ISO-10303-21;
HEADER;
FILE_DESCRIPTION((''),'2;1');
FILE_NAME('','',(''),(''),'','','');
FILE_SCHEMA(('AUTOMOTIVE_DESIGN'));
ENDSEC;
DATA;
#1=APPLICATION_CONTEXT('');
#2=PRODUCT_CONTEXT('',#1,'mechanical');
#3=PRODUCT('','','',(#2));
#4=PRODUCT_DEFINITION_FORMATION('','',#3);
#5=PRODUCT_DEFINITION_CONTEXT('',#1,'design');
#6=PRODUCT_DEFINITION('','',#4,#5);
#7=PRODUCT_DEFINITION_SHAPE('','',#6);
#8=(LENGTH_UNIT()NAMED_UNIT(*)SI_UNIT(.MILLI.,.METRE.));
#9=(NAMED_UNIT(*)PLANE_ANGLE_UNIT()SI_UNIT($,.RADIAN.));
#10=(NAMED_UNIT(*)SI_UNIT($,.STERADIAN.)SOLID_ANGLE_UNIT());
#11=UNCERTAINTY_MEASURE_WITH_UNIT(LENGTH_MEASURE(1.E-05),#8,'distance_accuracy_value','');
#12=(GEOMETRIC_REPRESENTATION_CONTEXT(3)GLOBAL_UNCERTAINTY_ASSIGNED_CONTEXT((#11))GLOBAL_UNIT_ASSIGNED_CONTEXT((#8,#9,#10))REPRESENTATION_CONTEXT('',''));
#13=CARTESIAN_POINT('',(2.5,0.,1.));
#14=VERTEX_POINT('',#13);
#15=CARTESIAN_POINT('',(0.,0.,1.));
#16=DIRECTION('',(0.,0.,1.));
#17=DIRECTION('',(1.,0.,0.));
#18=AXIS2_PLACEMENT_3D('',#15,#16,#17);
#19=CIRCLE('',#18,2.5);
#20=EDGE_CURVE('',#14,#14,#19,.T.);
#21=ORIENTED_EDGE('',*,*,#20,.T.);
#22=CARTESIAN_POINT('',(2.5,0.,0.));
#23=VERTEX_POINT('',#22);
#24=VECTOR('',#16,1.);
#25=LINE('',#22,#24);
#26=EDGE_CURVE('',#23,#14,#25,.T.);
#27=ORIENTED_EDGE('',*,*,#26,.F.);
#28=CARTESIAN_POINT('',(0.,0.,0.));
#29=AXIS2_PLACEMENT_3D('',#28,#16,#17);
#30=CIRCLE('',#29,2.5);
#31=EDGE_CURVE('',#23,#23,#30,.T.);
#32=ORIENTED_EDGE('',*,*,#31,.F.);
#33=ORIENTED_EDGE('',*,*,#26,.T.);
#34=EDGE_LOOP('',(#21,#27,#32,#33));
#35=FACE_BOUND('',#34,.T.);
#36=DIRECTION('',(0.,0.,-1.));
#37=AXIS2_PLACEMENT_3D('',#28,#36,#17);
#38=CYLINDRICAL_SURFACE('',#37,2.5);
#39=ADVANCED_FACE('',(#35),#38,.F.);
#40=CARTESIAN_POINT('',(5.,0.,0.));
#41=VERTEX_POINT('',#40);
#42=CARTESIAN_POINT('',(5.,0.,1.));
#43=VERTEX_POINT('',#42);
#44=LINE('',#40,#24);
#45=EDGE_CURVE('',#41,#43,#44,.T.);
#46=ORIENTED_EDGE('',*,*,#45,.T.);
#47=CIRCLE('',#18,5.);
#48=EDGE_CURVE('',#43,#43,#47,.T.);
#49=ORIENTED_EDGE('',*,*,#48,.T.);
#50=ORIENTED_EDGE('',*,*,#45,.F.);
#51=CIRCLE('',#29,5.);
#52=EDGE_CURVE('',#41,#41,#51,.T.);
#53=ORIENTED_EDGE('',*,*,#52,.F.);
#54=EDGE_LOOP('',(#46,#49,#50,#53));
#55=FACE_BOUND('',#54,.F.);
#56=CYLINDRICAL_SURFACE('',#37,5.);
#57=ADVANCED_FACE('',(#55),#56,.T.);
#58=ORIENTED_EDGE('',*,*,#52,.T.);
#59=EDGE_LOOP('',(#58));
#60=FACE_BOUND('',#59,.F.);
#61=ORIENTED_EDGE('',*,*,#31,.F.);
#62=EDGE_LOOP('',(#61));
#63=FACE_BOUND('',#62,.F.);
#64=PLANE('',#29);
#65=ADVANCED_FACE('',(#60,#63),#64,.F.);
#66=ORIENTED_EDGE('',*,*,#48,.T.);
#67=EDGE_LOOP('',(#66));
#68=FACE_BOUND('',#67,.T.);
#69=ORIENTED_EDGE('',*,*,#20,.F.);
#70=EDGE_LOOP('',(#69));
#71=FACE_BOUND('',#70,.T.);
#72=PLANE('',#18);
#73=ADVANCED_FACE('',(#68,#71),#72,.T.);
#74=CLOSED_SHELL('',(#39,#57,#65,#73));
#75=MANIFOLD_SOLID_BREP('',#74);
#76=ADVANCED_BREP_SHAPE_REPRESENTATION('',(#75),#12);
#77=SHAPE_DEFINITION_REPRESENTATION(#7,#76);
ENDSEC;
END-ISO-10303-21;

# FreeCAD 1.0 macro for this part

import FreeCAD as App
import Part
import Sketcher

V = App.Vector
Q = App.Units.Quantity

doc = App.newDocument("Part")
body = doc.addObject("PartDesign::Body", "Body")

# Sketch on XY plane
sketch1 = doc.addObject("Sketcher::SketchObject", "Sketch")
body.addObject(sketch1)
sketch1.AttachmentSupport = (doc.XY_Plane, [""])
sketch1.MapMode = "FlatFace"
sketch1.addGeometry([
    Part.Circle(V(0, 0, 0), V(0, 0, 1), 5),
    Part.Circle(V(0, 0, 0), V(0, 0, 1), 2.5),
], False)
sketch1.addConstraint([
    Sketcher.Constraint("Coincident", 0, 3, -1, 1),
    Sketcher.Constraint("Coincident", 1, 3, -1, 1),
    Sketcher.Constraint("Diameter", 0, Q("10 mm")),
    Sketcher.Constraint("Diameter", 1, Q("5 mm")),
])
pad1 = doc.addObject("PartDesign::Pad", "Pad")
body.addObject(pad1)
pad1.Profile = sketch1
pad1.Length = 1

doc.recompute()
